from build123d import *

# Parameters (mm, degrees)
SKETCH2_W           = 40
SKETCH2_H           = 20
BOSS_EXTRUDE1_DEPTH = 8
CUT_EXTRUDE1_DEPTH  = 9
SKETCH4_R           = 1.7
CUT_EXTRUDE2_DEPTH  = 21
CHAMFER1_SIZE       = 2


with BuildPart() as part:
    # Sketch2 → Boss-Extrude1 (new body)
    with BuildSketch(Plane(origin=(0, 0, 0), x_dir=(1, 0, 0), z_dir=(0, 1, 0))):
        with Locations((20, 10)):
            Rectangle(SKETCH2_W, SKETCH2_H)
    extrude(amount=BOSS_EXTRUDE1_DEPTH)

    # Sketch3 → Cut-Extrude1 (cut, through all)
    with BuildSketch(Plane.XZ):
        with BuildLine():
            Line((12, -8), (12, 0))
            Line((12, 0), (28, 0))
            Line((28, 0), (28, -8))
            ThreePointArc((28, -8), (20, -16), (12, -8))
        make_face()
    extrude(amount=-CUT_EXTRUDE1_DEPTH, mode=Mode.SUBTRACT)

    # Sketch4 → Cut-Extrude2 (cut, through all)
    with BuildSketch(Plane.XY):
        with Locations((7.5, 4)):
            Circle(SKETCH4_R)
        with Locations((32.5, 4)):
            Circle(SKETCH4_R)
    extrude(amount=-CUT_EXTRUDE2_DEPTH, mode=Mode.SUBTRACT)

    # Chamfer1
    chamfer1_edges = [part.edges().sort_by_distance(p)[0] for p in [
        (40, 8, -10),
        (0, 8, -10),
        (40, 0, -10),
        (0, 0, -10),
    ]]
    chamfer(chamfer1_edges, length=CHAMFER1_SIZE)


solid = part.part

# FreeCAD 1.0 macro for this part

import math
import FreeCAD as App
import Part
import Sketcher
Q = App.Units.Quantity


def edges_at(feature, points):
    """Names of the edges that pass closest to the given points."""
    edges = feature.Shape.Edges
    near = lambda p: min(range(len(edges)), key=lambda i: edges[i].distToShape(Part.Vertex(*p))[0])
    return sorted({f"Edge{near(p) + 1}" for p in points})

doc = App.newDocument("Part")
body = doc.addObject("PartDesign::Body", "Body")

# Sketch on XZ plane
sketch1 = doc.addObject("Sketcher::SketchObject", "Sketch")
body.addObject(sketch1)
sketch1.AttachmentSupport = (doc.XZ_Plane, [""])
sketch1.MapMode = "FlatFace"
sketch1.addGeometry([
    Part.LineSegment(App.Vector(0, -20, 0), App.Vector(0, 0, 0)),
    Part.LineSegment(App.Vector(0, 0, 0), App.Vector(40, 0, 0)),
    Part.LineSegment(App.Vector(40, 0, 0), App.Vector(40, -20, 0)),
    Part.LineSegment(App.Vector(40, -20, 0), App.Vector(0, -20, 0)),
], False)
sketch1.addConstraint([
    Sketcher.Constraint("Coincident", 0, 2, 1, 1),
    Sketcher.Constraint("Coincident", 1, 2, 2, 1),
    Sketcher.Constraint("Coincident", 2, 2, 3, 1),
    Sketcher.Constraint("Coincident", 3, 2, 0, 1),
    Sketcher.Constraint("Vertical", 0),
    Sketcher.Constraint("Horizontal", 1),
    Sketcher.Constraint("Vertical", 2),
    Sketcher.Constraint("Horizontal", 3),
    Sketcher.Constraint("Coincident", 0, 2, -1, 1),
    Sketcher.Constraint("DistanceX", 1, 1, 1, 2, Q("40 mm")),
    Sketcher.Constraint("DistanceY", 0, 1, 0, 2, Q("20 mm")),
])
pad1 = doc.addObject("PartDesign::Pad", "Pad")
body.addObject(pad1)
pad1.Profile = sketch1
pad1.Length = 8
pad1.Reversed = True

# Sketch on XZ plane
sketch2 = doc.addObject("Sketcher::SketchObject", "Sketch001")
body.addObject(sketch2)
sketch2.AttachmentSupport = (doc.XZ_Plane, [""])
sketch2.MapMode = "FlatFace"
sketch2.addGeometry([
    Part.LineSegment(App.Vector(12, 0, 0), App.Vector(12, -8, 0)),
    Part.ArcOfCircle(Part.Circle(App.Vector(20, -8, 0), App.Vector(0, 0, 1), 8), math.radians(180), math.radians(360)),
    Part.LineSegment(App.Vector(28, -8, 0), App.Vector(28, 0, 0)),
    Part.LineSegment(App.Vector(28, 0, 0), App.Vector(12, 0, 0)),
], False)
sketch2.addConstraint([
    Sketcher.Constraint("Tangent", 0, 2, 1, 1),
    Sketcher.Constraint("Tangent", 1, 2, 2, 1),
    Sketcher.Constraint("Coincident", 2, 2, 3, 1),
    Sketcher.Constraint("Coincident", 3, 2, 0, 1),
    Sketcher.Constraint("Vertical", 0),
    Sketcher.Constraint("Vertical", 2),
    Sketcher.Constraint("Horizontal", 3),
    Sketcher.Constraint("PointOnObject", 2, 2, -1),
    Sketcher.Constraint("Radius", 1, Q("8 mm")),
    Sketcher.Constraint("DistanceY", 0, 2, 0, 1, Q("8 mm")),
    Sketcher.Constraint("DistanceX", -1, 1, 1, 3, Q("20 mm")),
])
pocket1 = doc.addObject("PartDesign::Pocket", "Pocket")
body.addObject(pocket1)
pocket1.Profile = sketch2
pocket1.Type = "ThroughAll"

# Sketch on XY plane
sketch3 = doc.addObject("Sketcher::SketchObject", "Sketch002")
body.addObject(sketch3)
sketch3.AttachmentSupport = (doc.XY_Plane, [""])
sketch3.MapMode = "FlatFace"
sketch3.addGeometry([
    Part.Circle(App.Vector(7.5, 4, 0), App.Vector(0, 0, 1), 1.7),
    Part.Circle(App.Vector(32.5, 4, 0), App.Vector(0, 0, 1), 1.7),
], False)
sketch3.addConstraint([
    Sketcher.Constraint("Equal", 0, 1),
    Sketcher.Constraint("Horizontal", 0, 3, 1, 3),
    Sketcher.Constraint("Diameter", 0, Q("3.4 mm")),
    Sketcher.Constraint("DistanceY", -1, 1, 0, 3, Q("4 mm")),
    Sketcher.Constraint("DistanceX", 0, 3, 1, 3, Q("25 mm")),
    Sketcher.Constraint("DistanceX", -1, 1, 0, 3, Q("7.5 mm")),
])
pocket2 = doc.addObject("PartDesign::Pocket", "Pocket001")
body.addObject(pocket2)
pocket2.Profile = sketch3
pocket2.Type = "ThroughAll"
doc.recompute()

chamfer = doc.addObject("PartDesign::Chamfer", "Chamfer")
body.addObject(chamfer)
chamfer.Base = (pocket2, edges_at(pocket2, [
    (40, 8, -10),
    (0, 8, -10),
    (40, 0, -10),
    (0, 0, -10),
]))
chamfer.Size = 2

doc.recompute()
